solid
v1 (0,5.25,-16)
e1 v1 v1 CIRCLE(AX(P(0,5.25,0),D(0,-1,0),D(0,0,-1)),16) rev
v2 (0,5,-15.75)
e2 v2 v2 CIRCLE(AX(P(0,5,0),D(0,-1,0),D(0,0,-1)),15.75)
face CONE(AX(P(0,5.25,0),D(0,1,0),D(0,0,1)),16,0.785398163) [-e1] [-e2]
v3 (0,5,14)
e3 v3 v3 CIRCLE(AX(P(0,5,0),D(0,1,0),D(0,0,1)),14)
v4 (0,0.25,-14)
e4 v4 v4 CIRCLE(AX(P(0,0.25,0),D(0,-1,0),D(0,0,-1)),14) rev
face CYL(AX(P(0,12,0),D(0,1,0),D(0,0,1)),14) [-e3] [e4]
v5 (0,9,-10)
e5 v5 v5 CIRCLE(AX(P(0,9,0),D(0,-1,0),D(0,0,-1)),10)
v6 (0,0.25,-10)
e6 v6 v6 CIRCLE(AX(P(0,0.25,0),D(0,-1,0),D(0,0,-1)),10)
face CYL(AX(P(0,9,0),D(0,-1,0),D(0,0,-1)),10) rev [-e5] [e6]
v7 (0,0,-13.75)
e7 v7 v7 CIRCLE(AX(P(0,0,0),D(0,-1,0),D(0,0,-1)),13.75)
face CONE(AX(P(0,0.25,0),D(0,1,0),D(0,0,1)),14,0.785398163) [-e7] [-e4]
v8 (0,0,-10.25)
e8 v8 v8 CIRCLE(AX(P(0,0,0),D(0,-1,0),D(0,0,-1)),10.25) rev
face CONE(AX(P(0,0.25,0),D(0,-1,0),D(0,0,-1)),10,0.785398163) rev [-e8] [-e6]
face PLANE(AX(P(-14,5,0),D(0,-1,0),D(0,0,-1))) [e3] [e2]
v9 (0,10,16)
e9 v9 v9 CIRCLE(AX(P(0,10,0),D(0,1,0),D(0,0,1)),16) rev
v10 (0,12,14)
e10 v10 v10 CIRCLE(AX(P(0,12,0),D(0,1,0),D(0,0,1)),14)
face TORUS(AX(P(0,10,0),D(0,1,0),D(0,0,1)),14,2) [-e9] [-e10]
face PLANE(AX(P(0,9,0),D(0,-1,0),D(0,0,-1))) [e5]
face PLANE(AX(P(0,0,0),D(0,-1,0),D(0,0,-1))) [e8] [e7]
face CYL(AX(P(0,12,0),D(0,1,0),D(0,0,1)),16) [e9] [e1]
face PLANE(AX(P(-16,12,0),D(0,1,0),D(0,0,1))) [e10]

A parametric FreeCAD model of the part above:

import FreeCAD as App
import Part
import Sketcher
Q = App.Units.Quantity


def edges_at(feature, points):
    """Names of the edges that pass closest to the given points."""
    edges = feature.Shape.Edges
    near = lambda p: min(range(len(edges)), key=lambda i: edges[i].distToShape(Part.Vertex(*p))[0])
    return sorted({f"Edge{near(p) + 1}" for p in points})

doc = App.newDocument("Part")
body = doc.addObject("PartDesign::Body", "Body")

sketch1 = doc.addObject("Sketcher::SketchObject", "Sketch")
body.addObject(sketch1)
sketch1.AttachmentSupport = (doc.XY_Plane, [""])
sketch1.MapMode = "FlatFace"
sketch1.addGeometry(Part.LineSegment(App.Vector(-14, 0, 0), App.Vector(0, 0, 0)), False)
sketch1.addGeometry(Part.LineSegment(App.Vector(0, 0, 0), App.Vector(0, 12, 0)), False)
sketch1.addGeometry(Part.LineSegment(App.Vector(0, 12, 0), App.Vector(-16, 12, 0)), False)
sketch1.addGeometry(Part.LineSegment(App.Vector(-16, 12, 0), App.Vector(-16, 5, 0)), False)
sketch1.addGeometry(Part.LineSegment(App.Vector(-16, 5, 0), App.Vector(-14, 5, 0)), False)
sketch1.addGeometry(Part.LineSegment(App.Vector(-14, 5, 0), App.Vector(-14, 0, 0)), False)
sketch1.addConstraint(Sketcher.Constraint("Coincident", 0, 2, 1, 1))
sketch1.addConstraint(Sketcher.Constraint("Coincident", 1, 2, 2, 1))
sketch1.addConstraint(Sketcher.Constraint("Coincident", 2, 2, 3, 1))
sketch1.addConstraint(Sketcher.Constraint("Coincident", 3, 2, 4, 1))
sketch1.addConstraint(Sketcher.Constraint("Coincident", 4, 2, 5, 1))
sketch1.addConstraint(Sketcher.Constraint("Coincident", 5, 2, 0, 1))
sketch1.addConstraint(Sketcher.Constraint("Horizontal", 0))
sketch1.addConstraint(Sketcher.Constraint("Vertical", 1))
sketch1.addConstraint(Sketcher.Constraint("Horizontal", 2))
sketch1.addConstraint(Sketcher.Constraint("Vertical", 3))
sketch1.addConstraint(Sketcher.Constraint("Horizontal", 4))
sketch1.addConstraint(Sketcher.Constraint("Vertical", 5))
sketch1.addConstraint(Sketcher.Constraint("Coincident", 0, 2, -1, 1))
sketch1.addConstraint(Sketcher.Constraint("DistanceX", 0, 1, 0, 2, Q("14 mm")))
sketch1.addConstraint(Sketcher.Constraint("DistanceX", 2, 2, 2, 1, Q("16 mm")))
sketch1.addConstraint(Sketcher.Constraint("DistanceY", 1, 1, 1, 2, Q("12 mm")))
sketch1.addConstraint(Sketcher.Constraint("DistanceY", 3, 2, 3, 1, Q("7 mm")))
revolution = doc.addObject("PartDesign::Revolution", "Revolution")
body.addObject(revolution)
revolution.Profile = sketch1
revolution.ReferenceAxis = (sketch1, ["V_Axis"])
revolution.Angle = 360
doc.recompute()

fillet = doc.addObject("PartDesign::Fillet", "Fillet")
body.addObject(fillet)
fillet.Base = (revolution, edges_at(revolution, [(16, 12, 0)]))
fillet.Radius = 2

sketch2 = doc.addObject("Sketcher::SketchObject", "Sketch001")
body.addObject(sketch2)
sketch2.AttachmentSupport = (doc.XZ_Plane, [""])
sketch2.MapMode = "FlatFace"
sketch2.addGeometry(Part.Circle(App.Vector(0, 0, 0), App.Vector(0, 0, 1), 10), False)
sketch2.addConstraint(Sketcher.Constraint("Coincident", 0, 3, -1, 1))
sketch2.addConstraint(Sketcher.Constraint("Diameter", 0, Q("20 mm")))
pocket1 = doc.addObject("PartDesign::Pocket", "Pocket")
body.addObject(pocket1)
pocket1.Profile = sketch2
pocket1.Length = 9
doc.recompute()

chamfer = doc.addObject("PartDesign::Chamfer", "Chamfer")
body.addObject(chamfer)
chamfer.Base = (pocket1, edges_at(pocket1, [(-10, 0, 0), (14, 0, 0)]))
chamfer.Size = 0.25
doc.recompute()

chamfer2 = doc.addObject("PartDesign::Chamfer", "Chamfer001")
body.addObject(chamfer2)
chamfer2.Base = (chamfer, edges_at(chamfer, [(16, 5, 0)]))
chamfer2.Size = 0.25

doc.recompute()
